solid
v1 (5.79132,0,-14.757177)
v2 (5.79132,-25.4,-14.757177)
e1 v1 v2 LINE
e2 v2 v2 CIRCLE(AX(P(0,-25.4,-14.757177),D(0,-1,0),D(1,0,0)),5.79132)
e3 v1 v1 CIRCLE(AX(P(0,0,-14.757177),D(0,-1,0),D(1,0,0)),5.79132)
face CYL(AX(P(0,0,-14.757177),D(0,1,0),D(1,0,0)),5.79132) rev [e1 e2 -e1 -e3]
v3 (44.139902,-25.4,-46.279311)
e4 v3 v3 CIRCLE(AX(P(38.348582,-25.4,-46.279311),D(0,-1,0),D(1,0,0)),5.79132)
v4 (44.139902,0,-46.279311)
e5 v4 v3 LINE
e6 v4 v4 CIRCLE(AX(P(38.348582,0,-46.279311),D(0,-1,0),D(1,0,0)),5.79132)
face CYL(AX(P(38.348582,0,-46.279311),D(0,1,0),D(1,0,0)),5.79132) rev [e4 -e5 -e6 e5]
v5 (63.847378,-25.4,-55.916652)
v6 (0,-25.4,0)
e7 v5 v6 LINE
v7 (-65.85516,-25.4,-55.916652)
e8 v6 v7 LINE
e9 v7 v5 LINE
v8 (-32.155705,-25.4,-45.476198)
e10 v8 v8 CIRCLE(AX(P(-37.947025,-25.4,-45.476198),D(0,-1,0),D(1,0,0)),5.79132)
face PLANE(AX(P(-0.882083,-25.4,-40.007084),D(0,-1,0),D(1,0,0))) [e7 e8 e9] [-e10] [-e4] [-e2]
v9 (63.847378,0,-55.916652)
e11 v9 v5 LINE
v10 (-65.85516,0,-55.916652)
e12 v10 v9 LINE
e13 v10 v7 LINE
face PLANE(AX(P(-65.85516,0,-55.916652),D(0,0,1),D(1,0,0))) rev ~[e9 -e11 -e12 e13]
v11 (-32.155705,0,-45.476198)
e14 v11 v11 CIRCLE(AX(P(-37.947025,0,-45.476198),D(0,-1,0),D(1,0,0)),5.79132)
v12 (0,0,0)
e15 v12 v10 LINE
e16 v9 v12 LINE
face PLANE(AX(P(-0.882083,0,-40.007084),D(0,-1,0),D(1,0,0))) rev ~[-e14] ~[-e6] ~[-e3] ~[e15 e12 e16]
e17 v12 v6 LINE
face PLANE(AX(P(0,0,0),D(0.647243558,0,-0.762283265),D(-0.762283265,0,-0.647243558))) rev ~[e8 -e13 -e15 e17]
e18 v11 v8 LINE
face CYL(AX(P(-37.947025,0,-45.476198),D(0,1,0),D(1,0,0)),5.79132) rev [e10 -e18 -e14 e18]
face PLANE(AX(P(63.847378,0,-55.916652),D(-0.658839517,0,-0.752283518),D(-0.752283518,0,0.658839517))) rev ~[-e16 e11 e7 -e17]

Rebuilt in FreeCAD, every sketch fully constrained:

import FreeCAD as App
import Part
import Sketcher


def add_polygon(sketch, points):
    """Adds a closed chain of lines whose ends are joined by coincident constraints."""
    first, n = sketch.GeometryCount, len(points)
    for a, b in zip(points, points[1:] + points[:1]):
        sketch.addGeometry(Part.LineSegment(App.Vector(*a, 0), App.Vector(*b, 0)), False)
    for i in range(n):
        sketch.addConstraint(Sketcher.Constraint("Coincident", first + i, 2, first + (i + 1) % n, 1))

doc = App.newDocument("Part")
params = doc.addObject("Spreadsheet::Sheet", "Params")
for row, (alias, value) in enumerate([
    ("pad1_length", "1 in"),
], start=1):
    params.set(f"A{row}", alias)
    params.set(f"B{row}", "=" + value)
    params.setAlias(f"B{row}", alias)

body = doc.addObject("PartDesign::Body", "Body")

# Sketch on XZ plane
sketch1 = doc.addObject("Sketcher::SketchObject", "Sketch")
body.addObject(sketch1)
sketch1.AttachmentSupport = (doc.XZ_Plane, [""])
sketch1.MapMode = "FlatFace"
add_polygon(sketch1, [(64, -56), (0, 0), (-66, -56)])  # lines 0-2
sketch1.addGeometry(Part.Circle(App.Vector(-38, -45, 0), App.Vector(0, 0, 1), 6), False)  # 3
sketch1.addGeometry(Part.Circle(App.Vector(38, -46, 0), App.Vector(0, 0, 1), 6), False)  # 4
sketch1.addGeometry(Part.Circle(App.Vector(0, -15, 0), App.Vector(0, 0, 1), 6), False)  # 5
sketch1.addConstraint([
    Sketcher.Constraint("Horizontal", 2),
    Sketcher.Constraint("Coincident", 0, 2, -1, 1),
    Sketcher.Constraint("Equal", 3, 4),
    Sketcher.Constraint("Equal", 4, 5),
    Sketcher.Constraint("PointOnObject", 5, 3, -2),
    Sketcher.Constraint("Diameter", 3, 11.58264),
    Sketcher.Constraint("DistanceX", 2, 1, 2, 2, 129.702538),
    Sketcher.Constraint("Distance", 0, 84.87143),
    Sketcher.Constraint("Distance", 1, 86.391979),
    Sketcher.Constraint("DistanceY", 4, 3, -1, 1, 46.279311),
    Sketcher.Constraint("DistanceY", 3, 3, 5, 3, 30.719021),
    Sketcher.Constraint("DistanceX", 3, 3, -1, 1, 37.947025),
    Sketcher.Constraint("DistanceY", 3, 3, -1, 1, 45.476198),
    Sketcher.Constraint("DistanceX", -1, 1, 4, 3, 38.348582),
])
pad1 = doc.addObject("PartDesign::Pad", "Pad")
body.addObject(pad1)
pad1.Profile = sketch1
pad1.setExpression("Length", "Params.pad1_length")

doc.recompute()
